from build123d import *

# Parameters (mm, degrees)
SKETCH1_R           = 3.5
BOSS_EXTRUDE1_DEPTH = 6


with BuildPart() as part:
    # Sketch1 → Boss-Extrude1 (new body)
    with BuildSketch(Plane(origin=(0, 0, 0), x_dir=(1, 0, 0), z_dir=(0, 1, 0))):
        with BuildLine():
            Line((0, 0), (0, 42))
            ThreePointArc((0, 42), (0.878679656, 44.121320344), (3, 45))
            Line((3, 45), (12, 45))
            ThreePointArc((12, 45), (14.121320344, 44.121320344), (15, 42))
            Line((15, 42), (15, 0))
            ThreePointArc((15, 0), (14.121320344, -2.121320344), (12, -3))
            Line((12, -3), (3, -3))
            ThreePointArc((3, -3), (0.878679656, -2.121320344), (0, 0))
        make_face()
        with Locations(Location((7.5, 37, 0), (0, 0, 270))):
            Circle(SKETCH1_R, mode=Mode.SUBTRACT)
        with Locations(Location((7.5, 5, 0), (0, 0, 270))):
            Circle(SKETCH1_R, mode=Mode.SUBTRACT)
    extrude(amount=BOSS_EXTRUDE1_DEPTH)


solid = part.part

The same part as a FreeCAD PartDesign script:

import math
import FreeCAD as App
import Part
import Sketcher
from FreeCAD import Vector

doc = App.newDocument("Part")
body = doc.addObject("PartDesign::Body", "Body")

sketch1 = doc.addObject("Sketcher::SketchObject", "Sketch")
body.addObject(sketch1)
sketch1.AttachmentSupport = (doc.XZ_Plane, [""])
sketch1.MapMode = "FlatFace"
sketch1.addGeometry([
    Part.LineSegment(Vector(0, -42, 0), Vector(0, 0, 0)),
    Part.ArcOfCircle(Part.Circle(Vector(3, 0, 0), Vector(0, 0, 1), 3), math.radians(90), math.radians(180)),
    Part.LineSegment(Vector(3, 3, 0), Vector(12, 3, 0)),
    Part.ArcOfCircle(Part.Circle(Vector(12, 0, 0), Vector(0, 0, 1), 3), math.radians(0), math.radians(90)),
    Part.LineSegment(Vector(15, 0, 0), Vector(15, -42, 0)),
    Part.ArcOfCircle(Part.Circle(Vector(12, -42, 0), Vector(0, 0, 1), 3), math.radians(-90), math.radians(0)),
    Part.LineSegment(Vector(12, -45, 0), Vector(3, -45, 0)),
    Part.ArcOfCircle(Part.Circle(Vector(3, -42, 0), Vector(0, 0, 1), 3), math.radians(180), math.radians(270)),
    Part.Circle(Vector(7.5, -5, 0), Vector(0, 0, 1), 3.5),
    Part.Circle(Vector(7.5, -37, 0), Vector(0, 0, 1), 3.5),
], False)
sketch1.addConstraint([
    Sketcher.Constraint("Tangent", 0, 2, 1, 2),
    Sketcher.Constraint("Tangent", 1, 1, 2, 1),
    Sketcher.Constraint("Tangent", 2, 2, 3, 2),
    Sketcher.Constraint("Tangent", 3, 1, 4, 1),
    Sketcher.Constraint("Tangent", 4, 2, 5, 2),
    Sketcher.Constraint("Tangent", 5, 1, 6, 1),
    Sketcher.Constraint("Tangent", 6, 2, 7, 2),
    Sketcher.Constraint("Tangent", 7, 1, 0, 1),
    Sketcher.Constraint("Vertical", 0),
    Sketcher.Constraint("Horizontal", 2),
    Sketcher.Constraint("Vertical", 4),
    Sketcher.Constraint("Horizontal", 6),
    Sketcher.Constraint("Coincident", 0, 2, -1, 1),
    Sketcher.Constraint("Equal", 1, 3),
    Sketcher.Constraint("Equal", 3, 5),
    Sketcher.Constraint("Equal", 5, 7),
    Sketcher.Constraint("Equal", 8, 9),
    Sketcher.Constraint("Vertical", 8, 3, 9, 3),
    Sketcher.Constraint("Diameter", 8, 7.0),
    Sketcher.Constraint("Radius", 1, 3.0),
    Sketcher.Constraint("DistanceX", 2, 1, 2, 2, 9.0),
    Sketcher.Constraint("DistanceY", 0, 1, 0, 2, 42.0),
    Sketcher.Constraint("DistanceY", 8, 3, -1, 1, 5.0),
    Sketcher.Constraint("DistanceY", 9, 3, -1, 1, 37.0),
    Sketcher.Constraint("DistanceX", -1, 1, 8, 3, 7.5),
])
pad1 = doc.addObject("PartDesign::Pad", "Pad")
body.addObject(pad1)
pad1.Profile = sketch1
pad1.Length = 6
pad1.Reversed = True

doc.recompute()
